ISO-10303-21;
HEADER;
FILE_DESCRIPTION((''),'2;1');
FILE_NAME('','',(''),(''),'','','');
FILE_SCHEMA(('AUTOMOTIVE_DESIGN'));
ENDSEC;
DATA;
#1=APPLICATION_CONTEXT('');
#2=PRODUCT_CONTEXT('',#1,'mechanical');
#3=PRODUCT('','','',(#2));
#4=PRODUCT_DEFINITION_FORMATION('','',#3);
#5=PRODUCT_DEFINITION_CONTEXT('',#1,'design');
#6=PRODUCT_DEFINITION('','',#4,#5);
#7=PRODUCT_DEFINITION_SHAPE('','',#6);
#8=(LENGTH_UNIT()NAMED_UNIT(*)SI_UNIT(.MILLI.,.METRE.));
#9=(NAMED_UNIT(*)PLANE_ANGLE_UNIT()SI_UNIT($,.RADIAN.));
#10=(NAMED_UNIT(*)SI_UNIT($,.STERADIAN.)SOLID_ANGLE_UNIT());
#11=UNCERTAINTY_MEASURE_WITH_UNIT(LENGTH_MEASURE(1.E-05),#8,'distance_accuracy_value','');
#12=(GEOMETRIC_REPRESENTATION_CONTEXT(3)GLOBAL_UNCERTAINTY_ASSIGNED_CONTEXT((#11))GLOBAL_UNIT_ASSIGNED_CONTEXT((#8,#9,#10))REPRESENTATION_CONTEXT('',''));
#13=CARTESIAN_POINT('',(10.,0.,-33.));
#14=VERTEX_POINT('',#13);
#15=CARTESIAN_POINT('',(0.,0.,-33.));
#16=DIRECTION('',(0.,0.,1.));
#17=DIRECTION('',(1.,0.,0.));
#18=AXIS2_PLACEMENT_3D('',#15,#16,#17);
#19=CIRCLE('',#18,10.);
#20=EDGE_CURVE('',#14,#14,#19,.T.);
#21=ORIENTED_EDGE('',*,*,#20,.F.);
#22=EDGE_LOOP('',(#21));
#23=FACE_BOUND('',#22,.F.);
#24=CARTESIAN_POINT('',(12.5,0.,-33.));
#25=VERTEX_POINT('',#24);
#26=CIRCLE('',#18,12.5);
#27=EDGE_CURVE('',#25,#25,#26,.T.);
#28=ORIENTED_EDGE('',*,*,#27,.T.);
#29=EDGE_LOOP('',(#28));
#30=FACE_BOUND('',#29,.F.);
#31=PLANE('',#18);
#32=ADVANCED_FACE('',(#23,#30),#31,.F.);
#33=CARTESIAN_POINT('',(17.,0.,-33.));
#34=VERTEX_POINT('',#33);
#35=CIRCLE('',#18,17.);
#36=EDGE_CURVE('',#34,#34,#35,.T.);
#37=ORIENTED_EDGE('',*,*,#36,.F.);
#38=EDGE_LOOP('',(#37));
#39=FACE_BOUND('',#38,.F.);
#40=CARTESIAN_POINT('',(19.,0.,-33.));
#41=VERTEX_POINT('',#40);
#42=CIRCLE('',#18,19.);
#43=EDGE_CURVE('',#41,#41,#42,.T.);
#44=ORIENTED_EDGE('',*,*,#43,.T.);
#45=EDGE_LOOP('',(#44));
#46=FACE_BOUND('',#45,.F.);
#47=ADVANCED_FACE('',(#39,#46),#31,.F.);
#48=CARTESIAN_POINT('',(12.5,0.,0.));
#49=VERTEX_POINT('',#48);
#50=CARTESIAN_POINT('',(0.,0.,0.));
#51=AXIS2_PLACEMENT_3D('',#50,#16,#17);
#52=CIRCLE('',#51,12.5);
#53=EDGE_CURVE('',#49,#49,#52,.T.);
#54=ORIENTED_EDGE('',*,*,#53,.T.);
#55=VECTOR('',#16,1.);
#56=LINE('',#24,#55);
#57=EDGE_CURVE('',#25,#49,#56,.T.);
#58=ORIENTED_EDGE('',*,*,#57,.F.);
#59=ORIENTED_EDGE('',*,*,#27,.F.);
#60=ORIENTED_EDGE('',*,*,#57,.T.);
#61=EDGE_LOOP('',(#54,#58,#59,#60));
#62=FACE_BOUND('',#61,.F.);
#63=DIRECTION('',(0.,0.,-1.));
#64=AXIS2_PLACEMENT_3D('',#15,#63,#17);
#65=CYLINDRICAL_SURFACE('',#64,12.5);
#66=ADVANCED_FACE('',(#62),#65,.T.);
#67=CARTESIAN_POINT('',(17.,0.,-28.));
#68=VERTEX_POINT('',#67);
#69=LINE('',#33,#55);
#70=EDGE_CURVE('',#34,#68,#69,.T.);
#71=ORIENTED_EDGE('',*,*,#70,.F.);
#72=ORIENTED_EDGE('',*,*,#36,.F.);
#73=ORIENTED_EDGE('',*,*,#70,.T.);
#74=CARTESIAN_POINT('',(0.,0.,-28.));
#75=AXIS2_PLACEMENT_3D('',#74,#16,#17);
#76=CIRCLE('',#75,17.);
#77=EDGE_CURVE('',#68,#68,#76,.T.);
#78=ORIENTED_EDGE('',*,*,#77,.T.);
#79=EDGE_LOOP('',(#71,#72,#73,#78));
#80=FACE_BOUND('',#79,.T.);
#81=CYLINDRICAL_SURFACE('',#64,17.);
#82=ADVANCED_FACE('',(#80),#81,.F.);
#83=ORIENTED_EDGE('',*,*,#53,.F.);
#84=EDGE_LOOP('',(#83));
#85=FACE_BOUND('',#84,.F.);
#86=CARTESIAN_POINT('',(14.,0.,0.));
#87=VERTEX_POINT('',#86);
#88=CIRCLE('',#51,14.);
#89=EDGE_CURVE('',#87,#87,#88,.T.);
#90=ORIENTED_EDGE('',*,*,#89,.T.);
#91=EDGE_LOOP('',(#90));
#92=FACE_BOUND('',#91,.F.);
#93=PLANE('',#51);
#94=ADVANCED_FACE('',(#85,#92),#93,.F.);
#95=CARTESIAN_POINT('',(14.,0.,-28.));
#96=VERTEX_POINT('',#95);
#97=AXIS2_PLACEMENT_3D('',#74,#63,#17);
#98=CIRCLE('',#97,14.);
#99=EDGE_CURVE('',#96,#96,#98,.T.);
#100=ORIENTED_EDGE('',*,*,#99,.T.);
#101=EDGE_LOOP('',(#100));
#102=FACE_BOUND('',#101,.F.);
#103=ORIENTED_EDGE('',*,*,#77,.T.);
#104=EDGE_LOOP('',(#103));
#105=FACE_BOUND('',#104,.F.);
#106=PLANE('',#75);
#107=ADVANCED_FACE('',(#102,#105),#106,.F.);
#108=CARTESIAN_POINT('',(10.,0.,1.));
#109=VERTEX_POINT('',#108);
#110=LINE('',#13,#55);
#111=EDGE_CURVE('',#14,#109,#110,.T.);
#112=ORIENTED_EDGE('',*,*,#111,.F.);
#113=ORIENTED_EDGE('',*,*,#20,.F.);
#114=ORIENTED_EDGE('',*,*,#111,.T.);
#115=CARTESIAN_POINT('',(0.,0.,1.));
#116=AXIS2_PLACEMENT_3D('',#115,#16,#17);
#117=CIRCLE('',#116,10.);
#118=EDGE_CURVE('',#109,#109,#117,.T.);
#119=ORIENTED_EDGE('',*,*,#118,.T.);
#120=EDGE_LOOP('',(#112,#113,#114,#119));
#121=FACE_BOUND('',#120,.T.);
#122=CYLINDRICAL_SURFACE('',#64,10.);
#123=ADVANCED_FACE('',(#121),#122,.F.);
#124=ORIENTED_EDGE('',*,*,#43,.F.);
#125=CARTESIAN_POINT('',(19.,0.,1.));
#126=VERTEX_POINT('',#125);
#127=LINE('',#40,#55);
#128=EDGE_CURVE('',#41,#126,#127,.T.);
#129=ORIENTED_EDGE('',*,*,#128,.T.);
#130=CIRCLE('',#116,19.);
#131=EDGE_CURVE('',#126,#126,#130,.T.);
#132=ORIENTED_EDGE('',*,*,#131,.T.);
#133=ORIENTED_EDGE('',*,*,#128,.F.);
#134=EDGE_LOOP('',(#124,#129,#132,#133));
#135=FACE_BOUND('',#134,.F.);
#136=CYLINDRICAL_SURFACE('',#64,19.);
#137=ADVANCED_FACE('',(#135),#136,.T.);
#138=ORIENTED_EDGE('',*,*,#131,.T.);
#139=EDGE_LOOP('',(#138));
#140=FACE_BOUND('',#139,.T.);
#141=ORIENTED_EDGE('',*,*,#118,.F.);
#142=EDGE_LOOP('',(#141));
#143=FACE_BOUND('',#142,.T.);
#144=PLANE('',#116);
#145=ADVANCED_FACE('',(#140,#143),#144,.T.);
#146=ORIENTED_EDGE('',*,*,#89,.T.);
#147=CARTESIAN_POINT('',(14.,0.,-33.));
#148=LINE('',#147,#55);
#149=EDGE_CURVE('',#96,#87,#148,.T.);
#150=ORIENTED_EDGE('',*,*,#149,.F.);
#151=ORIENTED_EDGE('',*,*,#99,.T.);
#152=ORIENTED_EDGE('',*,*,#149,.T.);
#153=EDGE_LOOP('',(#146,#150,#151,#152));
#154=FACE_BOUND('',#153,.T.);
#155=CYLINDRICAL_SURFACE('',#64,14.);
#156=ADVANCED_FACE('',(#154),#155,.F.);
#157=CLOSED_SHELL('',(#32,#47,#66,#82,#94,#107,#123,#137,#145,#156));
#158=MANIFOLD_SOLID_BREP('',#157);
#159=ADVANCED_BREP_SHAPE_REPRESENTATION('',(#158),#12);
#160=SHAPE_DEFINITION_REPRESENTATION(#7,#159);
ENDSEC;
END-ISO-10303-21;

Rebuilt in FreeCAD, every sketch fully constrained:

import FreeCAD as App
import Part
import Sketcher
Q = App.Units.Quantity


def add_polygon(sketch, points):
    """Adds a closed chain of lines whose ends are joined by coincident constraints."""
    first, n = sketch.GeometryCount, len(points)
    for a, b in zip(points, points[1:] + points[:1]):
        sketch.addGeometry(Part.LineSegment(App.Vector(*a, 0), App.Vector(*b, 0)), False)
    for i in range(n):
        sketch.addConstraint(Sketcher.Constraint("Coincident", first + i, 2, first + (i + 1) % n, 1))

doc = App.newDocument("Part")
body = doc.addObject("PartDesign::Body", "Body")

sketch1 = body.newObject("Sketcher::SketchObject", "Sketch")
sketch1.AttachmentSupport = (doc.getObject("XY_Plane"), [""])
sketch1.MapMode = "FlatFace"
sketch1.AttachmentOffset = App.Placement(App.Vector(0, 0, -33), App.Rotation())
sketch1.addGeometry(Part.Circle(App.Vector(0, 0, 0), App.Vector(0, 0, 1), 10), False)
sketch1.addConstraint([
    Sketcher.Constraint("Coincident", 0, 3, -1, 1),
    Sketcher.Constraint("Diameter", 0, Q("20 mm")),
])
pad1 = body.newObject("PartDesign::Pad", "Pad")
pad1.Profile = sketch1
pad1.Length = 34
body2 = doc.addObject("PartDesign::Body", "Body001")

sketch2 = body2.newObject("Sketcher::SketchObject", "Sketch001")
sketch2.AttachmentSupport = (doc.getObject("XY_Plane001"), [""])
sketch2.MapMode = "FlatFace"
sketch2.AttachmentOffset = App.Placement(App.Vector(0, 0, -15), App.Rotation())
sketch2.addGeometry(Part.Circle(App.Vector(53.7, 148, 0), App.Vector(0, 0, 1), 1.5), False)
sketch2.addConstraint([
    Sketcher.Constraint("Diameter", 0, Q("3 mm")),
    Sketcher.Constraint("DistanceY", -1, 1, 0, 3, Q("148 mm")),
    Sketcher.Constraint("DistanceX", -1, 1, 0, 3, Q("53.66 mm")),
])
pad2 = body2.newObject("PartDesign::Pad", "Pad001")
pad2.Profile = sketch2
pad2.Length = 14
body3 = doc.addObject("PartDesign::Body", "Body002")

sketch3 = body3.newObject("Sketcher::SketchObject", "Sketch002")
sketch3.AttachmentSupport = (doc.getObject("XY_Plane002"), [""])
sketch3.MapMode = "FlatFace"
sketch3.AttachmentOffset = App.Placement(App.Vector(0, 0, -10), App.Rotation())
sketch3.addGeometry(Part.Circle(App.Vector(74, 148, 0), App.Vector(0, 0, 1), 12), False)
sketch3.addConstraint([
    Sketcher.Constraint("Diameter", 0, Q("25 mm")),
    Sketcher.Constraint("DistanceY", -1, 1, 0, 3, Q("148 mm")),
    Sketcher.Constraint("DistanceX", -1, 1, 0, 3, Q("73.66 mm")),
])
pad3 = body3.newObject("PartDesign::Pad", "Pad002")
pad3.Profile = sketch3
pad3.Length = 33
body4 = doc.addObject("PartDesign::Body", "Body003")
body4.AllowCompound = True

sketch4 = body4.newObject("Sketcher::SketchObject", "Sketch003")
sketch4.AttachmentSupport = (doc.getObject("XY_Plane003"), [""])
sketch4.MapMode = "FlatFace"
sketch4.AttachmentOffset = App.Placement(App.Vector(0, 0, -14), App.Rotation())
sketch4.addGeometry(Part.Circle(App.Vector(93.7, 148, 0), App.Vector(0, 0, 1), 1.5), False)
sketch4.addConstraint([
    Sketcher.Constraint("Diameter", 0, Q("3 mm")),
    Sketcher.Constraint("DistanceY", -1, 1, 0, 3, Q("148 mm")),
    Sketcher.Constraint("DistanceX", -1, 1, 0, 3, Q("93.66 mm")),
])
pad4 = body4.newObject("PartDesign::Pad", "Pad003")
pad4.Profile = sketch4
pad4.Length = 14
doc.recompute()

boolean = body4.newObject("PartDesign::Boolean", "Boolean")
boolean.Type = "Fuse"
boolean.addObjects([body2])
doc.recompute()

boolean2 = body4.newObject("PartDesign::Boolean", "Boolean001")
boolean2.Type = "Fuse"
boolean2.addObjects([body3])
body5 = doc.addObject("PartDesign::Body", "Body004")

sketch5 = body5.newObject("Sketcher::SketchObject", "Sketch004")
sketch5.AttachmentSupport = (doc.getObject("XY_Plane004"), [""])
sketch5.MapMode = "FlatFace"
sketch5.AttachmentOffset = App.Placement(App.Vector(0, 0, -10), App.Rotation())
sketch5.addGeometry(Part.Circle(App.Vector(74, 148, 0), App.Vector(0, 0, 1), 14), False)
sketch5.addConstraint([
    Sketcher.Constraint("Diameter", 0, Q("28 mm")),
    Sketcher.Constraint("DistanceY", -1, 1, 0, 3, Q("148 mm")),
    Sketcher.Constraint("DistanceX", -1, 1, 0, 3, Q("73.66 mm")),
])
pad5 = body5.newObject("PartDesign::Pad", "Pad004")
pad5.Profile = sketch5
pad5.Length = 33
body6 = doc.addObject("PartDesign::Body", "Body005")

sketch6 = body6.newObject("Sketcher::SketchObject", "Sketch005")
sketch6.AttachmentSupport = (doc.getObject("XY_Plane005"), [""])
sketch6.MapMode = "FlatFace"
sketch6.AttachmentOffset = App.Placement(App.Vector(0, 0, -8), App.Rotation())
add_polygon(sketch6, [(63, 137), (63, 136), (64, 136), (64, 137)])
sketch6.addConstraint([
    Sketcher.Constraint("Vertical", 0),
    Sketcher.Constraint("Horizontal", 1),
    Sketcher.Constraint("Vertical", 2),
    Sketcher.Constraint("Horizontal", 3),
    Sketcher.Constraint("Equal", 3, 0),
    Sketcher.Constraint("DistanceX", 1, 1, 1, 2, Q("1 mm")),
    Sketcher.Constraint("DistanceX", -1, 1, 0, 2, Q("63 mm")),
    Sketcher.Constraint("DistanceY", -1, 1, 0, 2, Q("136 mm")),
])
pad6 = body6.newObject("PartDesign::Pad", "Pad005")
pad6.Profile = sketch6
pad6.Length = 1
body7 = doc.addObject("PartDesign::Body", "Body006")

sketch7 = body7.newObject("Sketcher::SketchObject", "Sketch006")
sketch7.AttachmentSupport = (doc.getObject("XY_Plane006"), [""])
sketch7.MapMode = "FlatFace"
sketch7.AttachmentOffset = App.Placement(App.Vector(0, 0, -10), App.Rotation())
sketch7.addGeometry(Part.Circle(App.Vector(74, 148, 0), App.Vector(0, 0, 1), 17), False)
sketch7.addConstraint([
    Sketcher.Constraint("Diameter", 0, Q("34 mm")),
    Sketcher.Constraint("DistanceY", -1, 1, 0, 3, Q("148 mm")),
    Sketcher.Constraint("DistanceX", -1, 1, 0, 3, Q("73.66 mm")),
])
pad7 = body7.newObject("PartDesign::Pad", "Pad006")
pad7.Profile = sketch7
pad7.Length = 5
doc.recompute()

boolean3 = body7.newObject("PartDesign::Boolean", "Boolean002")
boolean3.Type = "Fuse"
boolean3.addObjects([body5])
doc.recompute()

boolean4 = body7.newObject("PartDesign::Boolean", "Boolean003")
boolean4.Type = "Fuse"
boolean4.addObjects([body6])
doc.recompute()

boolean5 = body7.newObject("PartDesign::Boolean", "Boolean004")
boolean5.Type = "Cut"
boolean5.addObjects([body4])
body8 = doc.addObject("PartDesign::Body", "Body007")
doc.recompute()

body7.Placement = App.Placement(App.Vector(-73.66, -148, -23), App.Rotation(App.Vector(0, 0, 1), 0))
boolean6 = body8.newObject("PartDesign::Boolean", "Boolean005")
boolean6.Type = "Fuse"
boolean6.addObjects([body7])
body9 = doc.addObject("PartDesign::Body", "Body008")

sketch8 = body9.newObject("Sketcher::SketchObject", "Sketch007")
sketch8.AttachmentSupport = (doc.getObject("XY_Plane008"), [""])
sketch8.MapMode = "FlatFace"
sketch8.AttachmentOffset = App.Placement(App.Vector(0, 0, -33), App.Rotation())
sketch8.addGeometry(Part.Circle(App.Vector(0, 0, 0), App.Vector(0, 0, 1), 19), False)
sketch8.addConstraint([
    Sketcher.Constraint("Coincident", 0, 3, -1, 1),
    Sketcher.Constraint("Diameter", 0, Q("38 mm")),
])
pad8 = body9.newObject("PartDesign::Pad", "Pad007")
pad8.Profile = sketch8
pad8.Length = 34
doc.recompute()

boolean7 = body9.newObject("PartDesign::Boolean", "Boolean006")
boolean7.Type = "Cut"
boolean7.addObjects([body8])
doc.recompute()

boolean8 = body9.newObject("PartDesign::Boolean", "Boolean007")
boolean8.Type = "Cut"
boolean8.addObjects([body])

doc.recompute()
